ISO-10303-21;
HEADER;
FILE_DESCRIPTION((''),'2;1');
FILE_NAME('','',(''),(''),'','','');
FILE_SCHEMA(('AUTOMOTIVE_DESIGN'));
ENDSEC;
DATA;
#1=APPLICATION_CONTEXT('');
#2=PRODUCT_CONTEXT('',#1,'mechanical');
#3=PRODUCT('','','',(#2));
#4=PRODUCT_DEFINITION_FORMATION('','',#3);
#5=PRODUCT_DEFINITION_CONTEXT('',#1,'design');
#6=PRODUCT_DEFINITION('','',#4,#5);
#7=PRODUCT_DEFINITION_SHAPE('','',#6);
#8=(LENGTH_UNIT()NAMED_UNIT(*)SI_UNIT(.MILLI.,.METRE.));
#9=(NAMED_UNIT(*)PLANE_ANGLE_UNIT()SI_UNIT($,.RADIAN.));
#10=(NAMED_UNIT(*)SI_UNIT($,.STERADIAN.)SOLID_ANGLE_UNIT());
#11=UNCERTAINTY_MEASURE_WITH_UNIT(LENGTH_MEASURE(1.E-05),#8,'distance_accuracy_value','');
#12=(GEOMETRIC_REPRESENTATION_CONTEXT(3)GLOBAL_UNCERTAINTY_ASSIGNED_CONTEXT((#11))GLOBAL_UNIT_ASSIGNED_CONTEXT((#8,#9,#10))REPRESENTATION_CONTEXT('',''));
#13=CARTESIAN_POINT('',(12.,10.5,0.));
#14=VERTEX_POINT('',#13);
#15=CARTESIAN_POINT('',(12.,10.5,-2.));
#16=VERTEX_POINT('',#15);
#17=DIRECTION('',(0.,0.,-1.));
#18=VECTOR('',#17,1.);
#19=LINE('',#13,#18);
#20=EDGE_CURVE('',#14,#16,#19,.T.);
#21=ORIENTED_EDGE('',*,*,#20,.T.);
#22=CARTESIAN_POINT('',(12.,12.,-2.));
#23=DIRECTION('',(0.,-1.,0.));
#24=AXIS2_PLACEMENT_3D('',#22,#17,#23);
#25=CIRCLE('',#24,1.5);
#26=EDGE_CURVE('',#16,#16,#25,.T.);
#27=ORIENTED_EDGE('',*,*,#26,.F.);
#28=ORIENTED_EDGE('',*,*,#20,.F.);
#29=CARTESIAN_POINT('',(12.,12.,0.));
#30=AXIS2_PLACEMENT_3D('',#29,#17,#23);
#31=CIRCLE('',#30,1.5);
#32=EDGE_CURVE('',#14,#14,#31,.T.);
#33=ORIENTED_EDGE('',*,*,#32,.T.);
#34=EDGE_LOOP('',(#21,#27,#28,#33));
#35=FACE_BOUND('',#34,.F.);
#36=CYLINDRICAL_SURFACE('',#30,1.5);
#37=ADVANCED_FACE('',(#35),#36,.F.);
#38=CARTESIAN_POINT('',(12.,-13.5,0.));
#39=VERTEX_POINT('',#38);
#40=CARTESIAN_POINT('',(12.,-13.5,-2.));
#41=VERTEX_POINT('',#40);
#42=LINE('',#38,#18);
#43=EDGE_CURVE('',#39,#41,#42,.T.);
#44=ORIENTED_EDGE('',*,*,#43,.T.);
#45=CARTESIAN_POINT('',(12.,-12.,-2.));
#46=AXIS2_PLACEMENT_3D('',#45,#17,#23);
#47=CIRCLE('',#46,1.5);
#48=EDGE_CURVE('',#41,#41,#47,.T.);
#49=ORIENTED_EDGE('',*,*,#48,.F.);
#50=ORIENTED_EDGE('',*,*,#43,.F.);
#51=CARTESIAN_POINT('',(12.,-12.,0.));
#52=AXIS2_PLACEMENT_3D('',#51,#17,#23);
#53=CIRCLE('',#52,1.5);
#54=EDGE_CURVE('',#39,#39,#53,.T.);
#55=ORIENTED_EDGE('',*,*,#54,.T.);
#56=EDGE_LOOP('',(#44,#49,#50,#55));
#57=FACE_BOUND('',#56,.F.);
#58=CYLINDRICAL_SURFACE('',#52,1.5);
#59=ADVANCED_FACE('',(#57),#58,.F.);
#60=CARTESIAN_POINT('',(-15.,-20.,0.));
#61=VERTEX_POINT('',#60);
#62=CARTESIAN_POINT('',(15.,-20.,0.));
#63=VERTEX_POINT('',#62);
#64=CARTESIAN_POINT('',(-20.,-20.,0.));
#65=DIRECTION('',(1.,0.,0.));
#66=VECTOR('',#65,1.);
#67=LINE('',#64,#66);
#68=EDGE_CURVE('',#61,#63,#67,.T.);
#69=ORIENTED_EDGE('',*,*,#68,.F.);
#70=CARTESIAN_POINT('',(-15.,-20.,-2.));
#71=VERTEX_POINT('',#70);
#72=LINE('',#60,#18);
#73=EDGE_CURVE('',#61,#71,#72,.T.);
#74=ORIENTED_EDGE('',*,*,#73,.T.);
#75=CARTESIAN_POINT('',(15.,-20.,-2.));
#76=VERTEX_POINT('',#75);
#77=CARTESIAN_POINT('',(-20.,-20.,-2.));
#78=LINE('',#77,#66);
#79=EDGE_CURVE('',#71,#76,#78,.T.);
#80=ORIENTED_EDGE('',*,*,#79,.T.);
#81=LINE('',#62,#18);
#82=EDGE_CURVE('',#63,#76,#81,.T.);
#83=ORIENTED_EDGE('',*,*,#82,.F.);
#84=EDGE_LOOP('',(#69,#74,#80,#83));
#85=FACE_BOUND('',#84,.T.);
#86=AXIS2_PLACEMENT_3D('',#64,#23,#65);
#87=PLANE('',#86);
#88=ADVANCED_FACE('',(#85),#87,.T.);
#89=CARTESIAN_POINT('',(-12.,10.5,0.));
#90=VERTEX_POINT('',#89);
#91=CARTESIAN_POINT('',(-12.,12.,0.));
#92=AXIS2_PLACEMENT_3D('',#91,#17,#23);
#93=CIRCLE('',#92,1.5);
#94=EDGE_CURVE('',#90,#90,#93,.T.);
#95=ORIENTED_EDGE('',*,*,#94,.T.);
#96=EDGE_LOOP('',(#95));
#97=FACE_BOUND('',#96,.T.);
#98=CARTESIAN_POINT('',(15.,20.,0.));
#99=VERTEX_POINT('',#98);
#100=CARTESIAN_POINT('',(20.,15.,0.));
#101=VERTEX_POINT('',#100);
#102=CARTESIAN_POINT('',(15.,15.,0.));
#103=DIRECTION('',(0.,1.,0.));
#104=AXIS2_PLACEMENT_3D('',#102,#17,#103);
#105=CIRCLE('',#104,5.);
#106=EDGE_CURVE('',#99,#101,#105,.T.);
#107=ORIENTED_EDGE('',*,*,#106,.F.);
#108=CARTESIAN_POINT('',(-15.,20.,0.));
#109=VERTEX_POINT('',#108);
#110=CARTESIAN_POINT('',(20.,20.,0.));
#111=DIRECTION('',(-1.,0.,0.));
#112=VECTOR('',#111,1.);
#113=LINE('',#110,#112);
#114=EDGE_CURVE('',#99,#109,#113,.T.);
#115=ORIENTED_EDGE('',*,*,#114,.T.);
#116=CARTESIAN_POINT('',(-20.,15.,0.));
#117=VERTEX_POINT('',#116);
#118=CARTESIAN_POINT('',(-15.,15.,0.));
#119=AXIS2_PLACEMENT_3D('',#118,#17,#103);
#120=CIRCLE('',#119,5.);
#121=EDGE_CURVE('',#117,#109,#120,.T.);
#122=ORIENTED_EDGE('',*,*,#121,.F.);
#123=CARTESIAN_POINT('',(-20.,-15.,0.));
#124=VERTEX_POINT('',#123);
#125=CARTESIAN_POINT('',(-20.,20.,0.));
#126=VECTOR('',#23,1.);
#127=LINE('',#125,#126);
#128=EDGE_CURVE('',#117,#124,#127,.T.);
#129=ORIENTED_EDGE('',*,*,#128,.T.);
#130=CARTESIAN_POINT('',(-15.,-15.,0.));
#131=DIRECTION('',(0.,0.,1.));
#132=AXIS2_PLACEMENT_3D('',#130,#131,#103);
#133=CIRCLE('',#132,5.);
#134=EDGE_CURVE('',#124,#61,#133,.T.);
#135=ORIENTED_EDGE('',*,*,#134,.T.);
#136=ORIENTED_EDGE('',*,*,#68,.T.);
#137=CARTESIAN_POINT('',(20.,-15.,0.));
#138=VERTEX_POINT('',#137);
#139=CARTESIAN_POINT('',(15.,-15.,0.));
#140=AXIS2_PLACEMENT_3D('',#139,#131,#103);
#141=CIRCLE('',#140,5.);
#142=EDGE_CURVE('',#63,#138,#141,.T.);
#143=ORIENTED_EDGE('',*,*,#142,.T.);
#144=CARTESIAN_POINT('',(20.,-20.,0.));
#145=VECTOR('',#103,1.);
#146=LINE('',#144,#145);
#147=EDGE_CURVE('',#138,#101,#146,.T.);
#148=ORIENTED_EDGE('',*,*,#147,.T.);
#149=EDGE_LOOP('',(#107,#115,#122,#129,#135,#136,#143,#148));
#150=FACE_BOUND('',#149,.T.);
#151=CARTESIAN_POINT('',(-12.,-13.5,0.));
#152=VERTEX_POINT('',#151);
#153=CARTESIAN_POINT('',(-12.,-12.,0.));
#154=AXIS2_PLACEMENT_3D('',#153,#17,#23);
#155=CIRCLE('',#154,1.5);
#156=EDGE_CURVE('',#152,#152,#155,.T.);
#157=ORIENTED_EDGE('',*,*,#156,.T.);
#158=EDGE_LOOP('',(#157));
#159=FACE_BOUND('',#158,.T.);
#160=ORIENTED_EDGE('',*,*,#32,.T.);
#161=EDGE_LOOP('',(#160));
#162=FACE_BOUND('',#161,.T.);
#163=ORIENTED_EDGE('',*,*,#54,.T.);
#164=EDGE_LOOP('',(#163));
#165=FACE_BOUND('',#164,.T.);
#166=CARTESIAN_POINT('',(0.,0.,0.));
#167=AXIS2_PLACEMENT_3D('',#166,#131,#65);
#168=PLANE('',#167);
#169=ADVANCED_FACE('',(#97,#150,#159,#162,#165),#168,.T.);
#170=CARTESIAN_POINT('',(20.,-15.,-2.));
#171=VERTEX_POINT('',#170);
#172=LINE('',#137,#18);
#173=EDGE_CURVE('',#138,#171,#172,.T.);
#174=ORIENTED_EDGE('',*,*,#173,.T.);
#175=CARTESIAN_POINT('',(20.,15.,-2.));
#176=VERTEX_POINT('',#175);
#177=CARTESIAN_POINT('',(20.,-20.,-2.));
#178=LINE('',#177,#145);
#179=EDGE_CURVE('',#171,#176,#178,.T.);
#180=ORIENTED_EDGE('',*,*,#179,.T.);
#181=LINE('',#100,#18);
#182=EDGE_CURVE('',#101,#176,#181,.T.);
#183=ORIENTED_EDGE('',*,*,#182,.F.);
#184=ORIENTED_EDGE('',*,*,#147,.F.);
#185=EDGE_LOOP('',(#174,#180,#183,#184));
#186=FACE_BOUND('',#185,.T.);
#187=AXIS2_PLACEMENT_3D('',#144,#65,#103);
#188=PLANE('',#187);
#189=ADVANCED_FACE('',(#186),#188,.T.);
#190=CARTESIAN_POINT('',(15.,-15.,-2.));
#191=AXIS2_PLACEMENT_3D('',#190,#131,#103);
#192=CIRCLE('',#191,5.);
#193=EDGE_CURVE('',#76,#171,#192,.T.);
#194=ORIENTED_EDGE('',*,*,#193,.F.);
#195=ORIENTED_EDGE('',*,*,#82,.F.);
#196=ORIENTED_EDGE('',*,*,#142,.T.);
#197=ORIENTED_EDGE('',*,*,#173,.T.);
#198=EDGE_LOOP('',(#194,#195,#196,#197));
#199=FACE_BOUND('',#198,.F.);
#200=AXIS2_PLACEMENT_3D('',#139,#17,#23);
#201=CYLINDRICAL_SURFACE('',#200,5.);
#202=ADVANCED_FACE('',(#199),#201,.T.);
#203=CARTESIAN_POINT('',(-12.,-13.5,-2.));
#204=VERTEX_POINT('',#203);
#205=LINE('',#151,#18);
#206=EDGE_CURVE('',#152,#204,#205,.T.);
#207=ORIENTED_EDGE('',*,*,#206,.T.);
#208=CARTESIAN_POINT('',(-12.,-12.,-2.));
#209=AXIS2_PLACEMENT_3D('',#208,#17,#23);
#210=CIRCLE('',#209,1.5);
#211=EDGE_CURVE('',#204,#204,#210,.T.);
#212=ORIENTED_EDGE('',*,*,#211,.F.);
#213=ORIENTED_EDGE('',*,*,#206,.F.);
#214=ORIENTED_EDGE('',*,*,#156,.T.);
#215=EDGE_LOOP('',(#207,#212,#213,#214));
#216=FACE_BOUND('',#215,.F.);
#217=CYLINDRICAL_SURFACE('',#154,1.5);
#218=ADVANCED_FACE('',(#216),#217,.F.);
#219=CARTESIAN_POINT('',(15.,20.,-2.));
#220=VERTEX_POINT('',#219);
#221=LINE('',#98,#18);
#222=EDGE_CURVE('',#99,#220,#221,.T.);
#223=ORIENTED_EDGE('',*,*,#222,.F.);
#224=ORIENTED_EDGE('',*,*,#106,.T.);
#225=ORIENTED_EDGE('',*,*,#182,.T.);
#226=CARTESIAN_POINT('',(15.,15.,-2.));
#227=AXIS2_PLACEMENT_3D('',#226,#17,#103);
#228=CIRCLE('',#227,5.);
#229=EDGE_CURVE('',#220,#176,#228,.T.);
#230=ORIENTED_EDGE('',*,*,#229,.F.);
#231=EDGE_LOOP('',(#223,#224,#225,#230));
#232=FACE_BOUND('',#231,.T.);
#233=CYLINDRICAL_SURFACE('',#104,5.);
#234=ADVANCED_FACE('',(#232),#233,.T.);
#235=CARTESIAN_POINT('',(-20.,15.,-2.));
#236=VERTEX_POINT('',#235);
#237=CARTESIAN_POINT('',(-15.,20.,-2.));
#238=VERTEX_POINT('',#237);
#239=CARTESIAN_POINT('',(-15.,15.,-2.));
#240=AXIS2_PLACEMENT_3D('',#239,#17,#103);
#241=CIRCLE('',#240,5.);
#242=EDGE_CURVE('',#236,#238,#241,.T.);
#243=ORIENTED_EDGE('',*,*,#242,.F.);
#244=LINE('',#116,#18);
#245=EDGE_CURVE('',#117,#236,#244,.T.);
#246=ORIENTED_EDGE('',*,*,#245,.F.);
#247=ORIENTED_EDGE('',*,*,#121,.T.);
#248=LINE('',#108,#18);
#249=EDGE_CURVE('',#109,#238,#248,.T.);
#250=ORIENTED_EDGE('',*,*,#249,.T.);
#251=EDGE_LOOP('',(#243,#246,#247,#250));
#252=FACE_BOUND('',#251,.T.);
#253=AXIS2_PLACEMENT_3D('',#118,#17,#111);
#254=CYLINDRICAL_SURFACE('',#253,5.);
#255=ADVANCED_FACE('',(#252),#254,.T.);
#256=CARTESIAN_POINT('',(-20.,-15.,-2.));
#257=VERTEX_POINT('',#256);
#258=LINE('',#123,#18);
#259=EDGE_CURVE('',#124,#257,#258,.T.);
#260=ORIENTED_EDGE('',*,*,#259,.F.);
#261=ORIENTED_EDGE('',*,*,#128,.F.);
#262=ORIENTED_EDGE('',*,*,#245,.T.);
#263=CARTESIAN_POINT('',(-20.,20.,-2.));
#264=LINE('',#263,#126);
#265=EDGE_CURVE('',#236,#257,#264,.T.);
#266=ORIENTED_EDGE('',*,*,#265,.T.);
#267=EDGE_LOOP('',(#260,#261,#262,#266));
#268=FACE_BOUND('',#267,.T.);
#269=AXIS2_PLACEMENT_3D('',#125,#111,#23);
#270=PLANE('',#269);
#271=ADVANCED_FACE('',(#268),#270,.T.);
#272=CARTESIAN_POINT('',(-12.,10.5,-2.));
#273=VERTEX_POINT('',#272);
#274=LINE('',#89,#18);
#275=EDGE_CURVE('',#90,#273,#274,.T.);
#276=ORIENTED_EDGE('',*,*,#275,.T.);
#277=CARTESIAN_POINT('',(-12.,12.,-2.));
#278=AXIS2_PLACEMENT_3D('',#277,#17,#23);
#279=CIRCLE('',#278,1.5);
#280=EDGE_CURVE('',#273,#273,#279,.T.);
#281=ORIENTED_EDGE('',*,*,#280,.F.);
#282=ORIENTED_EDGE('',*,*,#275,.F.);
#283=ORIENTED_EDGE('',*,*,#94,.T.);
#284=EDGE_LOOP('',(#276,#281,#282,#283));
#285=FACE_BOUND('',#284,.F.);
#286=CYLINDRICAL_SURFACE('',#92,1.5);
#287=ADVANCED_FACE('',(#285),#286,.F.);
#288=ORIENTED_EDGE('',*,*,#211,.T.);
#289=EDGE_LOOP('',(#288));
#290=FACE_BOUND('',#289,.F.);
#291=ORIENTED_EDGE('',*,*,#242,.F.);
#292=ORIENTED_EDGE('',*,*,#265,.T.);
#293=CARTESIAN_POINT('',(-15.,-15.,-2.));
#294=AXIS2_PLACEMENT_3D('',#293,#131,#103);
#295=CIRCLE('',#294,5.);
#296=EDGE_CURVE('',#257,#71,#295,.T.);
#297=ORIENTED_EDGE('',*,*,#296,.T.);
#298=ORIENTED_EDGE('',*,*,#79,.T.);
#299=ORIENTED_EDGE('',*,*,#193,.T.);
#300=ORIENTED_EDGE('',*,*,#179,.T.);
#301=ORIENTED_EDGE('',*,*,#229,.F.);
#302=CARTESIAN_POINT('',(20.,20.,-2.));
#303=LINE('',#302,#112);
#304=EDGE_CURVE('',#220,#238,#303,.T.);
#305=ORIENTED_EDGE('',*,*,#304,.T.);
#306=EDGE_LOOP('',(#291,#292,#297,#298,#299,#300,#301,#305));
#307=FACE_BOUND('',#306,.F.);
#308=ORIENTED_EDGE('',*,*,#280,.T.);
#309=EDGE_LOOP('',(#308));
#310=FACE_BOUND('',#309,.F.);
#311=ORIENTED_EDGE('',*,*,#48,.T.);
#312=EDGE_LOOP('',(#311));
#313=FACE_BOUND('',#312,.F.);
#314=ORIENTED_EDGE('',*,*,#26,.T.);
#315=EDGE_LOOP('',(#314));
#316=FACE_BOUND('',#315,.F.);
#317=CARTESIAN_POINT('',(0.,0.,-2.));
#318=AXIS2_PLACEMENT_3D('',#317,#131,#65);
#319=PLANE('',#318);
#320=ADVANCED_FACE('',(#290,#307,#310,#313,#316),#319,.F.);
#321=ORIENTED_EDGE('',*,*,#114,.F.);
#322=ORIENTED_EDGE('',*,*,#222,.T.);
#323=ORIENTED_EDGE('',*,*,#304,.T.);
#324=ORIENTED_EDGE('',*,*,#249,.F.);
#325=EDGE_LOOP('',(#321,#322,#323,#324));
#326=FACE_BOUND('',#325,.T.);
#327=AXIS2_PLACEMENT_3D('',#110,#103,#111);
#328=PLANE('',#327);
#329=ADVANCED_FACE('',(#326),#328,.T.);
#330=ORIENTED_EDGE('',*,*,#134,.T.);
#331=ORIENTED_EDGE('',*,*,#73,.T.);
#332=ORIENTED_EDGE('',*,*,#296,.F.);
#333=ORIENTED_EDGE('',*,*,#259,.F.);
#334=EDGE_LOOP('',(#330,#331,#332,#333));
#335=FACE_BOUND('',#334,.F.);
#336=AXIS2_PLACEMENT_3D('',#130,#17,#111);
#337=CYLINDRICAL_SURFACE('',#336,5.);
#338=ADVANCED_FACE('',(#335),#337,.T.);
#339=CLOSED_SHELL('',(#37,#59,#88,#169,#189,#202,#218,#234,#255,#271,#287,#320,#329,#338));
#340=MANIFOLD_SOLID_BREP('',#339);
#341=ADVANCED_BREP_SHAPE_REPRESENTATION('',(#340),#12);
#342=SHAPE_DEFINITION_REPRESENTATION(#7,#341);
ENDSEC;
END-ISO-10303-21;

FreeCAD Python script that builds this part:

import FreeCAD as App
import Part
import Sketcher
from FreeCAD import Vector
Q = App.Units.Quantity


def edges_at(feature, points):
    """Names of the edges that pass closest to the given points."""
    edges = feature.Shape.Edges
    near = lambda p: min(range(len(edges)), key=lambda i: edges[i].distToShape(Part.Vertex(*p))[0])
    return sorted({f"Edge{near(p) + 1}" for p in points})

doc = App.newDocument("Part")
body = doc.addObject("PartDesign::Body", "Body")

# Sketch on XY plane
sketch1 = doc.addObject("Sketcher::SketchObject", "Sketch")
body.addObject(sketch1)
sketch1.AttachmentSupport = (doc.XY_Plane, [""])
sketch1.MapMode = "FlatFace"
sketch1.addGeometry([
    Part.LineSegment(Vector(-20, 20, 0), Vector(-20, -20, 0)),
    Part.LineSegment(Vector(-20, -20, 0), Vector(20, -20, 0)),
    Part.LineSegment(Vector(20, -20, 0), Vector(20, 20, 0)),
    Part.LineSegment(Vector(20, 20, 0), Vector(-20, 20, 0)),
], False)
sketch1.addConstraint([
    Sketcher.Constraint("Coincident", 0, 2, 1, 1),
    Sketcher.Constraint("Coincident", 1, 2, 2, 1),
    Sketcher.Constraint("Coincident", 2, 2, 3, 1),
    Sketcher.Constraint("Coincident", 3, 2, 0, 1),
    Sketcher.Constraint("Vertical", 0),
    Sketcher.Constraint("Horizontal", 1),
    Sketcher.Constraint("Vertical", 2),
    Sketcher.Constraint("Horizontal", 3),
    Sketcher.Constraint("Symmetric", 0, 2, 2, 2, -1, 1),
    Sketcher.Constraint("Equal", 3, 0),
    Sketcher.Constraint("DistanceX", 1, 1, 1, 2, Q("40 mm")),
])
pad1 = doc.addObject("PartDesign::Pad", "Pad")
body.addObject(pad1)
pad1.Profile = sketch1
pad1.Length = 2
pad1.Reversed = True

# Sketch on XY plane
sketch2 = doc.addObject("Sketcher::SketchObject", "Sketch001")
body.addObject(sketch2)
sketch2.AttachmentSupport = (doc.XY_Plane, [""])
sketch2.MapMode = "FlatFace"
sketch2.addGeometry([
    Part.Circle(Vector(-12, 12, 0), Vector(0, 0, 1), 1.5),
    Part.Circle(Vector(12, 12, 0), Vector(0, 0, 1), 1.5),
    Part.Circle(Vector(12, -12, 0), Vector(0, 0, 1), 1.5),
    Part.Circle(Vector(-12, -12, 0), Vector(0, 0, 1), 1.5),
], False)
sketch2.addConstraint([
    Sketcher.Constraint("Equal", 0, 1),
    Sketcher.Constraint("Equal", 1, 2),
    Sketcher.Constraint("Equal", 2, 3),
    Sketcher.Constraint("Symmetric", 0, 3, 2, 3, -1, 1),
    Sketcher.Constraint("Symmetric", 1, 3, 3, 3, -1, 1),
    Sketcher.Constraint("Symmetric", 0, 3, 1, 3, -2),
    Sketcher.Constraint("Diameter", 0, Q("3 mm")),
    Sketcher.Constraint("DistanceX", 0, 3, -1, 1, Q("12 mm")),
    Sketcher.Constraint("DistanceY", -1, 1, 0, 3, Q("12 mm")),
])
doc.recompute()
hole = doc.addObject("PartDesign::Hole", "Hole")
body.addObject(hole)
hole.Profile = sketch2
hole.ThreadType = "None"
hole.Diameter = 3
hole.DepthType = "Dimension"
hole.Depth = 2
hole.DrillPoint = "Flat"
doc.recompute()

fillet = doc.addObject("PartDesign::Fillet", "Fillet")
body.addObject(fillet)
fillet.Base = (hole, edges_at(hole, [
    (20, 20, -1),
    (20, -20, -1),
    (-20, -20, -1),
    (-20, 20, -1),
]))
fillet.Radius = 5

doc.recompute()
